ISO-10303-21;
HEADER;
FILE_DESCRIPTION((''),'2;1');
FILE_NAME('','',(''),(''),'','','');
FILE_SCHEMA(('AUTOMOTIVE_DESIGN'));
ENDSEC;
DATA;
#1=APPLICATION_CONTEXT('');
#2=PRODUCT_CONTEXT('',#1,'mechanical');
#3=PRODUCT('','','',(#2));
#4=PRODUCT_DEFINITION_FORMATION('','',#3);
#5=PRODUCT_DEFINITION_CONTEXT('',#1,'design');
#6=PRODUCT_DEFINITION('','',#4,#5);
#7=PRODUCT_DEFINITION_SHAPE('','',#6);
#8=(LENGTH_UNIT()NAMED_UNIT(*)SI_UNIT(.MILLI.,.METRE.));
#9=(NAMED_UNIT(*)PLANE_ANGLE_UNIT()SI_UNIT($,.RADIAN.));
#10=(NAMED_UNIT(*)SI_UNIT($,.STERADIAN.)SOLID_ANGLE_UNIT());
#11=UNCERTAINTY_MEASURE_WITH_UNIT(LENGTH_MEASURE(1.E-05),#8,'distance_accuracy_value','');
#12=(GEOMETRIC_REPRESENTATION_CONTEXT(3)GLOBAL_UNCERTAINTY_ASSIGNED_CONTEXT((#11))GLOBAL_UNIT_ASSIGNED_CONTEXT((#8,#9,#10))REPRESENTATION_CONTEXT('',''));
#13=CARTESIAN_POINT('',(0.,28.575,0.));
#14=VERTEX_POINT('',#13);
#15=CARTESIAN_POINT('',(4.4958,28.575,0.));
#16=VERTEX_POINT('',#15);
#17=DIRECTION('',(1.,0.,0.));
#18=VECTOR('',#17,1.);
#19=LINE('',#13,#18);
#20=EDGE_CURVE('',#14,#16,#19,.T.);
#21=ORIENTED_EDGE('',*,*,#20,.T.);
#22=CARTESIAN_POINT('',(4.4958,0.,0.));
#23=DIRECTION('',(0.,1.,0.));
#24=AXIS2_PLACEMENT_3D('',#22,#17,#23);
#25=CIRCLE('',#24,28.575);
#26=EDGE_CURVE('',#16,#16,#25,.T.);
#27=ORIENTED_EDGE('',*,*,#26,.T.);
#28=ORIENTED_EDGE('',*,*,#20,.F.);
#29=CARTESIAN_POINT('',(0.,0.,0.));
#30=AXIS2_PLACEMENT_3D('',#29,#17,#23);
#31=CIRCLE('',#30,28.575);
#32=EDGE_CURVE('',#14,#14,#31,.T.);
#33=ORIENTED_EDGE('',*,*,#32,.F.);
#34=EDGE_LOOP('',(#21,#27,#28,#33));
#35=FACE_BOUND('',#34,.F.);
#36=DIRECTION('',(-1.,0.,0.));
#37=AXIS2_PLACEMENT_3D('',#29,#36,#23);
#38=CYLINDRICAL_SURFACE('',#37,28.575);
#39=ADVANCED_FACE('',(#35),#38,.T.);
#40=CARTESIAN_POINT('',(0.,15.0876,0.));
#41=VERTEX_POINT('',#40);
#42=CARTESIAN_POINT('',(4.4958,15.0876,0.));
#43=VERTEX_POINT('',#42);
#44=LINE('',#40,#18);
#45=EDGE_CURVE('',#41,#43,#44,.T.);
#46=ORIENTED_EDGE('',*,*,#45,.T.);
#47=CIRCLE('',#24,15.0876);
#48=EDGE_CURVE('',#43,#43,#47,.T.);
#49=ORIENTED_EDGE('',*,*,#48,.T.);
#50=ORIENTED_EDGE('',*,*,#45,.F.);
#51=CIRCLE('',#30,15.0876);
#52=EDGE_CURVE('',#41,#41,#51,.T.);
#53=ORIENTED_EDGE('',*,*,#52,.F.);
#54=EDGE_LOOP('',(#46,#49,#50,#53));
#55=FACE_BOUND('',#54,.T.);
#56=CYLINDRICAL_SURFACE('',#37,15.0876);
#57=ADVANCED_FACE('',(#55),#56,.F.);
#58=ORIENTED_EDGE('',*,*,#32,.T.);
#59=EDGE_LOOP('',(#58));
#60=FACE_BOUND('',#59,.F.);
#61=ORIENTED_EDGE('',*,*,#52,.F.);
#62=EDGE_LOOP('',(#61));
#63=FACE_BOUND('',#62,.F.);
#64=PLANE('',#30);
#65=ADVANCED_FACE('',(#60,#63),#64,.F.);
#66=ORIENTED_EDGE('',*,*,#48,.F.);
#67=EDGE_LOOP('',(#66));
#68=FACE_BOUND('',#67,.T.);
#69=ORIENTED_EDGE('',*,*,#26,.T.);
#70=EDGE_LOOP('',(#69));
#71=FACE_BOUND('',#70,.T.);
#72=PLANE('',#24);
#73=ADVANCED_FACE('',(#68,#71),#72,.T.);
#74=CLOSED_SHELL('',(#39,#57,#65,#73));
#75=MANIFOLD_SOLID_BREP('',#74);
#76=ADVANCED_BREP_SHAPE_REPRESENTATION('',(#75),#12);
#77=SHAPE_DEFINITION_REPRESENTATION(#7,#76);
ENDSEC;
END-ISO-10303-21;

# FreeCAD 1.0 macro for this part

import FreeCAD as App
import Part
import Sketcher
from FreeCAD import Vector
Q = App.Units.Quantity

doc = App.newDocument("Part")
body = doc.addObject("PartDesign::Body", "Body")

# Sketch on YZ plane
sketch1 = body.newObject("Sketcher::SketchObject", "Sketch")
sketch1.AttachmentSupport = (doc.getObject("YZ_Plane"), [""])
sketch1.MapMode = "FlatFace"
sketch1.addGeometry([
    Part.Circle(Vector(0, 0, 0), Vector(0, 0, 1), 29),
    Part.Circle(Vector(0, 0, 0), Vector(0, 0, 1), 15),
], False)
sketch1.addConstraint([
    Sketcher.Constraint("Coincident", 0, 3, -1, 1),
    Sketcher.Constraint("Coincident", 1, 3, -1, 1),
    Sketcher.Constraint("Diameter", 0, Q("2.25 in")),
    Sketcher.Constraint("Diameter", 1, Q("1.188 in")),
])
pad1 = body.newObject("PartDesign::Pad", "Pad")
pad1.Profile = sketch1
pad1.Length = Q("0.177 in")

doc.recompute()
